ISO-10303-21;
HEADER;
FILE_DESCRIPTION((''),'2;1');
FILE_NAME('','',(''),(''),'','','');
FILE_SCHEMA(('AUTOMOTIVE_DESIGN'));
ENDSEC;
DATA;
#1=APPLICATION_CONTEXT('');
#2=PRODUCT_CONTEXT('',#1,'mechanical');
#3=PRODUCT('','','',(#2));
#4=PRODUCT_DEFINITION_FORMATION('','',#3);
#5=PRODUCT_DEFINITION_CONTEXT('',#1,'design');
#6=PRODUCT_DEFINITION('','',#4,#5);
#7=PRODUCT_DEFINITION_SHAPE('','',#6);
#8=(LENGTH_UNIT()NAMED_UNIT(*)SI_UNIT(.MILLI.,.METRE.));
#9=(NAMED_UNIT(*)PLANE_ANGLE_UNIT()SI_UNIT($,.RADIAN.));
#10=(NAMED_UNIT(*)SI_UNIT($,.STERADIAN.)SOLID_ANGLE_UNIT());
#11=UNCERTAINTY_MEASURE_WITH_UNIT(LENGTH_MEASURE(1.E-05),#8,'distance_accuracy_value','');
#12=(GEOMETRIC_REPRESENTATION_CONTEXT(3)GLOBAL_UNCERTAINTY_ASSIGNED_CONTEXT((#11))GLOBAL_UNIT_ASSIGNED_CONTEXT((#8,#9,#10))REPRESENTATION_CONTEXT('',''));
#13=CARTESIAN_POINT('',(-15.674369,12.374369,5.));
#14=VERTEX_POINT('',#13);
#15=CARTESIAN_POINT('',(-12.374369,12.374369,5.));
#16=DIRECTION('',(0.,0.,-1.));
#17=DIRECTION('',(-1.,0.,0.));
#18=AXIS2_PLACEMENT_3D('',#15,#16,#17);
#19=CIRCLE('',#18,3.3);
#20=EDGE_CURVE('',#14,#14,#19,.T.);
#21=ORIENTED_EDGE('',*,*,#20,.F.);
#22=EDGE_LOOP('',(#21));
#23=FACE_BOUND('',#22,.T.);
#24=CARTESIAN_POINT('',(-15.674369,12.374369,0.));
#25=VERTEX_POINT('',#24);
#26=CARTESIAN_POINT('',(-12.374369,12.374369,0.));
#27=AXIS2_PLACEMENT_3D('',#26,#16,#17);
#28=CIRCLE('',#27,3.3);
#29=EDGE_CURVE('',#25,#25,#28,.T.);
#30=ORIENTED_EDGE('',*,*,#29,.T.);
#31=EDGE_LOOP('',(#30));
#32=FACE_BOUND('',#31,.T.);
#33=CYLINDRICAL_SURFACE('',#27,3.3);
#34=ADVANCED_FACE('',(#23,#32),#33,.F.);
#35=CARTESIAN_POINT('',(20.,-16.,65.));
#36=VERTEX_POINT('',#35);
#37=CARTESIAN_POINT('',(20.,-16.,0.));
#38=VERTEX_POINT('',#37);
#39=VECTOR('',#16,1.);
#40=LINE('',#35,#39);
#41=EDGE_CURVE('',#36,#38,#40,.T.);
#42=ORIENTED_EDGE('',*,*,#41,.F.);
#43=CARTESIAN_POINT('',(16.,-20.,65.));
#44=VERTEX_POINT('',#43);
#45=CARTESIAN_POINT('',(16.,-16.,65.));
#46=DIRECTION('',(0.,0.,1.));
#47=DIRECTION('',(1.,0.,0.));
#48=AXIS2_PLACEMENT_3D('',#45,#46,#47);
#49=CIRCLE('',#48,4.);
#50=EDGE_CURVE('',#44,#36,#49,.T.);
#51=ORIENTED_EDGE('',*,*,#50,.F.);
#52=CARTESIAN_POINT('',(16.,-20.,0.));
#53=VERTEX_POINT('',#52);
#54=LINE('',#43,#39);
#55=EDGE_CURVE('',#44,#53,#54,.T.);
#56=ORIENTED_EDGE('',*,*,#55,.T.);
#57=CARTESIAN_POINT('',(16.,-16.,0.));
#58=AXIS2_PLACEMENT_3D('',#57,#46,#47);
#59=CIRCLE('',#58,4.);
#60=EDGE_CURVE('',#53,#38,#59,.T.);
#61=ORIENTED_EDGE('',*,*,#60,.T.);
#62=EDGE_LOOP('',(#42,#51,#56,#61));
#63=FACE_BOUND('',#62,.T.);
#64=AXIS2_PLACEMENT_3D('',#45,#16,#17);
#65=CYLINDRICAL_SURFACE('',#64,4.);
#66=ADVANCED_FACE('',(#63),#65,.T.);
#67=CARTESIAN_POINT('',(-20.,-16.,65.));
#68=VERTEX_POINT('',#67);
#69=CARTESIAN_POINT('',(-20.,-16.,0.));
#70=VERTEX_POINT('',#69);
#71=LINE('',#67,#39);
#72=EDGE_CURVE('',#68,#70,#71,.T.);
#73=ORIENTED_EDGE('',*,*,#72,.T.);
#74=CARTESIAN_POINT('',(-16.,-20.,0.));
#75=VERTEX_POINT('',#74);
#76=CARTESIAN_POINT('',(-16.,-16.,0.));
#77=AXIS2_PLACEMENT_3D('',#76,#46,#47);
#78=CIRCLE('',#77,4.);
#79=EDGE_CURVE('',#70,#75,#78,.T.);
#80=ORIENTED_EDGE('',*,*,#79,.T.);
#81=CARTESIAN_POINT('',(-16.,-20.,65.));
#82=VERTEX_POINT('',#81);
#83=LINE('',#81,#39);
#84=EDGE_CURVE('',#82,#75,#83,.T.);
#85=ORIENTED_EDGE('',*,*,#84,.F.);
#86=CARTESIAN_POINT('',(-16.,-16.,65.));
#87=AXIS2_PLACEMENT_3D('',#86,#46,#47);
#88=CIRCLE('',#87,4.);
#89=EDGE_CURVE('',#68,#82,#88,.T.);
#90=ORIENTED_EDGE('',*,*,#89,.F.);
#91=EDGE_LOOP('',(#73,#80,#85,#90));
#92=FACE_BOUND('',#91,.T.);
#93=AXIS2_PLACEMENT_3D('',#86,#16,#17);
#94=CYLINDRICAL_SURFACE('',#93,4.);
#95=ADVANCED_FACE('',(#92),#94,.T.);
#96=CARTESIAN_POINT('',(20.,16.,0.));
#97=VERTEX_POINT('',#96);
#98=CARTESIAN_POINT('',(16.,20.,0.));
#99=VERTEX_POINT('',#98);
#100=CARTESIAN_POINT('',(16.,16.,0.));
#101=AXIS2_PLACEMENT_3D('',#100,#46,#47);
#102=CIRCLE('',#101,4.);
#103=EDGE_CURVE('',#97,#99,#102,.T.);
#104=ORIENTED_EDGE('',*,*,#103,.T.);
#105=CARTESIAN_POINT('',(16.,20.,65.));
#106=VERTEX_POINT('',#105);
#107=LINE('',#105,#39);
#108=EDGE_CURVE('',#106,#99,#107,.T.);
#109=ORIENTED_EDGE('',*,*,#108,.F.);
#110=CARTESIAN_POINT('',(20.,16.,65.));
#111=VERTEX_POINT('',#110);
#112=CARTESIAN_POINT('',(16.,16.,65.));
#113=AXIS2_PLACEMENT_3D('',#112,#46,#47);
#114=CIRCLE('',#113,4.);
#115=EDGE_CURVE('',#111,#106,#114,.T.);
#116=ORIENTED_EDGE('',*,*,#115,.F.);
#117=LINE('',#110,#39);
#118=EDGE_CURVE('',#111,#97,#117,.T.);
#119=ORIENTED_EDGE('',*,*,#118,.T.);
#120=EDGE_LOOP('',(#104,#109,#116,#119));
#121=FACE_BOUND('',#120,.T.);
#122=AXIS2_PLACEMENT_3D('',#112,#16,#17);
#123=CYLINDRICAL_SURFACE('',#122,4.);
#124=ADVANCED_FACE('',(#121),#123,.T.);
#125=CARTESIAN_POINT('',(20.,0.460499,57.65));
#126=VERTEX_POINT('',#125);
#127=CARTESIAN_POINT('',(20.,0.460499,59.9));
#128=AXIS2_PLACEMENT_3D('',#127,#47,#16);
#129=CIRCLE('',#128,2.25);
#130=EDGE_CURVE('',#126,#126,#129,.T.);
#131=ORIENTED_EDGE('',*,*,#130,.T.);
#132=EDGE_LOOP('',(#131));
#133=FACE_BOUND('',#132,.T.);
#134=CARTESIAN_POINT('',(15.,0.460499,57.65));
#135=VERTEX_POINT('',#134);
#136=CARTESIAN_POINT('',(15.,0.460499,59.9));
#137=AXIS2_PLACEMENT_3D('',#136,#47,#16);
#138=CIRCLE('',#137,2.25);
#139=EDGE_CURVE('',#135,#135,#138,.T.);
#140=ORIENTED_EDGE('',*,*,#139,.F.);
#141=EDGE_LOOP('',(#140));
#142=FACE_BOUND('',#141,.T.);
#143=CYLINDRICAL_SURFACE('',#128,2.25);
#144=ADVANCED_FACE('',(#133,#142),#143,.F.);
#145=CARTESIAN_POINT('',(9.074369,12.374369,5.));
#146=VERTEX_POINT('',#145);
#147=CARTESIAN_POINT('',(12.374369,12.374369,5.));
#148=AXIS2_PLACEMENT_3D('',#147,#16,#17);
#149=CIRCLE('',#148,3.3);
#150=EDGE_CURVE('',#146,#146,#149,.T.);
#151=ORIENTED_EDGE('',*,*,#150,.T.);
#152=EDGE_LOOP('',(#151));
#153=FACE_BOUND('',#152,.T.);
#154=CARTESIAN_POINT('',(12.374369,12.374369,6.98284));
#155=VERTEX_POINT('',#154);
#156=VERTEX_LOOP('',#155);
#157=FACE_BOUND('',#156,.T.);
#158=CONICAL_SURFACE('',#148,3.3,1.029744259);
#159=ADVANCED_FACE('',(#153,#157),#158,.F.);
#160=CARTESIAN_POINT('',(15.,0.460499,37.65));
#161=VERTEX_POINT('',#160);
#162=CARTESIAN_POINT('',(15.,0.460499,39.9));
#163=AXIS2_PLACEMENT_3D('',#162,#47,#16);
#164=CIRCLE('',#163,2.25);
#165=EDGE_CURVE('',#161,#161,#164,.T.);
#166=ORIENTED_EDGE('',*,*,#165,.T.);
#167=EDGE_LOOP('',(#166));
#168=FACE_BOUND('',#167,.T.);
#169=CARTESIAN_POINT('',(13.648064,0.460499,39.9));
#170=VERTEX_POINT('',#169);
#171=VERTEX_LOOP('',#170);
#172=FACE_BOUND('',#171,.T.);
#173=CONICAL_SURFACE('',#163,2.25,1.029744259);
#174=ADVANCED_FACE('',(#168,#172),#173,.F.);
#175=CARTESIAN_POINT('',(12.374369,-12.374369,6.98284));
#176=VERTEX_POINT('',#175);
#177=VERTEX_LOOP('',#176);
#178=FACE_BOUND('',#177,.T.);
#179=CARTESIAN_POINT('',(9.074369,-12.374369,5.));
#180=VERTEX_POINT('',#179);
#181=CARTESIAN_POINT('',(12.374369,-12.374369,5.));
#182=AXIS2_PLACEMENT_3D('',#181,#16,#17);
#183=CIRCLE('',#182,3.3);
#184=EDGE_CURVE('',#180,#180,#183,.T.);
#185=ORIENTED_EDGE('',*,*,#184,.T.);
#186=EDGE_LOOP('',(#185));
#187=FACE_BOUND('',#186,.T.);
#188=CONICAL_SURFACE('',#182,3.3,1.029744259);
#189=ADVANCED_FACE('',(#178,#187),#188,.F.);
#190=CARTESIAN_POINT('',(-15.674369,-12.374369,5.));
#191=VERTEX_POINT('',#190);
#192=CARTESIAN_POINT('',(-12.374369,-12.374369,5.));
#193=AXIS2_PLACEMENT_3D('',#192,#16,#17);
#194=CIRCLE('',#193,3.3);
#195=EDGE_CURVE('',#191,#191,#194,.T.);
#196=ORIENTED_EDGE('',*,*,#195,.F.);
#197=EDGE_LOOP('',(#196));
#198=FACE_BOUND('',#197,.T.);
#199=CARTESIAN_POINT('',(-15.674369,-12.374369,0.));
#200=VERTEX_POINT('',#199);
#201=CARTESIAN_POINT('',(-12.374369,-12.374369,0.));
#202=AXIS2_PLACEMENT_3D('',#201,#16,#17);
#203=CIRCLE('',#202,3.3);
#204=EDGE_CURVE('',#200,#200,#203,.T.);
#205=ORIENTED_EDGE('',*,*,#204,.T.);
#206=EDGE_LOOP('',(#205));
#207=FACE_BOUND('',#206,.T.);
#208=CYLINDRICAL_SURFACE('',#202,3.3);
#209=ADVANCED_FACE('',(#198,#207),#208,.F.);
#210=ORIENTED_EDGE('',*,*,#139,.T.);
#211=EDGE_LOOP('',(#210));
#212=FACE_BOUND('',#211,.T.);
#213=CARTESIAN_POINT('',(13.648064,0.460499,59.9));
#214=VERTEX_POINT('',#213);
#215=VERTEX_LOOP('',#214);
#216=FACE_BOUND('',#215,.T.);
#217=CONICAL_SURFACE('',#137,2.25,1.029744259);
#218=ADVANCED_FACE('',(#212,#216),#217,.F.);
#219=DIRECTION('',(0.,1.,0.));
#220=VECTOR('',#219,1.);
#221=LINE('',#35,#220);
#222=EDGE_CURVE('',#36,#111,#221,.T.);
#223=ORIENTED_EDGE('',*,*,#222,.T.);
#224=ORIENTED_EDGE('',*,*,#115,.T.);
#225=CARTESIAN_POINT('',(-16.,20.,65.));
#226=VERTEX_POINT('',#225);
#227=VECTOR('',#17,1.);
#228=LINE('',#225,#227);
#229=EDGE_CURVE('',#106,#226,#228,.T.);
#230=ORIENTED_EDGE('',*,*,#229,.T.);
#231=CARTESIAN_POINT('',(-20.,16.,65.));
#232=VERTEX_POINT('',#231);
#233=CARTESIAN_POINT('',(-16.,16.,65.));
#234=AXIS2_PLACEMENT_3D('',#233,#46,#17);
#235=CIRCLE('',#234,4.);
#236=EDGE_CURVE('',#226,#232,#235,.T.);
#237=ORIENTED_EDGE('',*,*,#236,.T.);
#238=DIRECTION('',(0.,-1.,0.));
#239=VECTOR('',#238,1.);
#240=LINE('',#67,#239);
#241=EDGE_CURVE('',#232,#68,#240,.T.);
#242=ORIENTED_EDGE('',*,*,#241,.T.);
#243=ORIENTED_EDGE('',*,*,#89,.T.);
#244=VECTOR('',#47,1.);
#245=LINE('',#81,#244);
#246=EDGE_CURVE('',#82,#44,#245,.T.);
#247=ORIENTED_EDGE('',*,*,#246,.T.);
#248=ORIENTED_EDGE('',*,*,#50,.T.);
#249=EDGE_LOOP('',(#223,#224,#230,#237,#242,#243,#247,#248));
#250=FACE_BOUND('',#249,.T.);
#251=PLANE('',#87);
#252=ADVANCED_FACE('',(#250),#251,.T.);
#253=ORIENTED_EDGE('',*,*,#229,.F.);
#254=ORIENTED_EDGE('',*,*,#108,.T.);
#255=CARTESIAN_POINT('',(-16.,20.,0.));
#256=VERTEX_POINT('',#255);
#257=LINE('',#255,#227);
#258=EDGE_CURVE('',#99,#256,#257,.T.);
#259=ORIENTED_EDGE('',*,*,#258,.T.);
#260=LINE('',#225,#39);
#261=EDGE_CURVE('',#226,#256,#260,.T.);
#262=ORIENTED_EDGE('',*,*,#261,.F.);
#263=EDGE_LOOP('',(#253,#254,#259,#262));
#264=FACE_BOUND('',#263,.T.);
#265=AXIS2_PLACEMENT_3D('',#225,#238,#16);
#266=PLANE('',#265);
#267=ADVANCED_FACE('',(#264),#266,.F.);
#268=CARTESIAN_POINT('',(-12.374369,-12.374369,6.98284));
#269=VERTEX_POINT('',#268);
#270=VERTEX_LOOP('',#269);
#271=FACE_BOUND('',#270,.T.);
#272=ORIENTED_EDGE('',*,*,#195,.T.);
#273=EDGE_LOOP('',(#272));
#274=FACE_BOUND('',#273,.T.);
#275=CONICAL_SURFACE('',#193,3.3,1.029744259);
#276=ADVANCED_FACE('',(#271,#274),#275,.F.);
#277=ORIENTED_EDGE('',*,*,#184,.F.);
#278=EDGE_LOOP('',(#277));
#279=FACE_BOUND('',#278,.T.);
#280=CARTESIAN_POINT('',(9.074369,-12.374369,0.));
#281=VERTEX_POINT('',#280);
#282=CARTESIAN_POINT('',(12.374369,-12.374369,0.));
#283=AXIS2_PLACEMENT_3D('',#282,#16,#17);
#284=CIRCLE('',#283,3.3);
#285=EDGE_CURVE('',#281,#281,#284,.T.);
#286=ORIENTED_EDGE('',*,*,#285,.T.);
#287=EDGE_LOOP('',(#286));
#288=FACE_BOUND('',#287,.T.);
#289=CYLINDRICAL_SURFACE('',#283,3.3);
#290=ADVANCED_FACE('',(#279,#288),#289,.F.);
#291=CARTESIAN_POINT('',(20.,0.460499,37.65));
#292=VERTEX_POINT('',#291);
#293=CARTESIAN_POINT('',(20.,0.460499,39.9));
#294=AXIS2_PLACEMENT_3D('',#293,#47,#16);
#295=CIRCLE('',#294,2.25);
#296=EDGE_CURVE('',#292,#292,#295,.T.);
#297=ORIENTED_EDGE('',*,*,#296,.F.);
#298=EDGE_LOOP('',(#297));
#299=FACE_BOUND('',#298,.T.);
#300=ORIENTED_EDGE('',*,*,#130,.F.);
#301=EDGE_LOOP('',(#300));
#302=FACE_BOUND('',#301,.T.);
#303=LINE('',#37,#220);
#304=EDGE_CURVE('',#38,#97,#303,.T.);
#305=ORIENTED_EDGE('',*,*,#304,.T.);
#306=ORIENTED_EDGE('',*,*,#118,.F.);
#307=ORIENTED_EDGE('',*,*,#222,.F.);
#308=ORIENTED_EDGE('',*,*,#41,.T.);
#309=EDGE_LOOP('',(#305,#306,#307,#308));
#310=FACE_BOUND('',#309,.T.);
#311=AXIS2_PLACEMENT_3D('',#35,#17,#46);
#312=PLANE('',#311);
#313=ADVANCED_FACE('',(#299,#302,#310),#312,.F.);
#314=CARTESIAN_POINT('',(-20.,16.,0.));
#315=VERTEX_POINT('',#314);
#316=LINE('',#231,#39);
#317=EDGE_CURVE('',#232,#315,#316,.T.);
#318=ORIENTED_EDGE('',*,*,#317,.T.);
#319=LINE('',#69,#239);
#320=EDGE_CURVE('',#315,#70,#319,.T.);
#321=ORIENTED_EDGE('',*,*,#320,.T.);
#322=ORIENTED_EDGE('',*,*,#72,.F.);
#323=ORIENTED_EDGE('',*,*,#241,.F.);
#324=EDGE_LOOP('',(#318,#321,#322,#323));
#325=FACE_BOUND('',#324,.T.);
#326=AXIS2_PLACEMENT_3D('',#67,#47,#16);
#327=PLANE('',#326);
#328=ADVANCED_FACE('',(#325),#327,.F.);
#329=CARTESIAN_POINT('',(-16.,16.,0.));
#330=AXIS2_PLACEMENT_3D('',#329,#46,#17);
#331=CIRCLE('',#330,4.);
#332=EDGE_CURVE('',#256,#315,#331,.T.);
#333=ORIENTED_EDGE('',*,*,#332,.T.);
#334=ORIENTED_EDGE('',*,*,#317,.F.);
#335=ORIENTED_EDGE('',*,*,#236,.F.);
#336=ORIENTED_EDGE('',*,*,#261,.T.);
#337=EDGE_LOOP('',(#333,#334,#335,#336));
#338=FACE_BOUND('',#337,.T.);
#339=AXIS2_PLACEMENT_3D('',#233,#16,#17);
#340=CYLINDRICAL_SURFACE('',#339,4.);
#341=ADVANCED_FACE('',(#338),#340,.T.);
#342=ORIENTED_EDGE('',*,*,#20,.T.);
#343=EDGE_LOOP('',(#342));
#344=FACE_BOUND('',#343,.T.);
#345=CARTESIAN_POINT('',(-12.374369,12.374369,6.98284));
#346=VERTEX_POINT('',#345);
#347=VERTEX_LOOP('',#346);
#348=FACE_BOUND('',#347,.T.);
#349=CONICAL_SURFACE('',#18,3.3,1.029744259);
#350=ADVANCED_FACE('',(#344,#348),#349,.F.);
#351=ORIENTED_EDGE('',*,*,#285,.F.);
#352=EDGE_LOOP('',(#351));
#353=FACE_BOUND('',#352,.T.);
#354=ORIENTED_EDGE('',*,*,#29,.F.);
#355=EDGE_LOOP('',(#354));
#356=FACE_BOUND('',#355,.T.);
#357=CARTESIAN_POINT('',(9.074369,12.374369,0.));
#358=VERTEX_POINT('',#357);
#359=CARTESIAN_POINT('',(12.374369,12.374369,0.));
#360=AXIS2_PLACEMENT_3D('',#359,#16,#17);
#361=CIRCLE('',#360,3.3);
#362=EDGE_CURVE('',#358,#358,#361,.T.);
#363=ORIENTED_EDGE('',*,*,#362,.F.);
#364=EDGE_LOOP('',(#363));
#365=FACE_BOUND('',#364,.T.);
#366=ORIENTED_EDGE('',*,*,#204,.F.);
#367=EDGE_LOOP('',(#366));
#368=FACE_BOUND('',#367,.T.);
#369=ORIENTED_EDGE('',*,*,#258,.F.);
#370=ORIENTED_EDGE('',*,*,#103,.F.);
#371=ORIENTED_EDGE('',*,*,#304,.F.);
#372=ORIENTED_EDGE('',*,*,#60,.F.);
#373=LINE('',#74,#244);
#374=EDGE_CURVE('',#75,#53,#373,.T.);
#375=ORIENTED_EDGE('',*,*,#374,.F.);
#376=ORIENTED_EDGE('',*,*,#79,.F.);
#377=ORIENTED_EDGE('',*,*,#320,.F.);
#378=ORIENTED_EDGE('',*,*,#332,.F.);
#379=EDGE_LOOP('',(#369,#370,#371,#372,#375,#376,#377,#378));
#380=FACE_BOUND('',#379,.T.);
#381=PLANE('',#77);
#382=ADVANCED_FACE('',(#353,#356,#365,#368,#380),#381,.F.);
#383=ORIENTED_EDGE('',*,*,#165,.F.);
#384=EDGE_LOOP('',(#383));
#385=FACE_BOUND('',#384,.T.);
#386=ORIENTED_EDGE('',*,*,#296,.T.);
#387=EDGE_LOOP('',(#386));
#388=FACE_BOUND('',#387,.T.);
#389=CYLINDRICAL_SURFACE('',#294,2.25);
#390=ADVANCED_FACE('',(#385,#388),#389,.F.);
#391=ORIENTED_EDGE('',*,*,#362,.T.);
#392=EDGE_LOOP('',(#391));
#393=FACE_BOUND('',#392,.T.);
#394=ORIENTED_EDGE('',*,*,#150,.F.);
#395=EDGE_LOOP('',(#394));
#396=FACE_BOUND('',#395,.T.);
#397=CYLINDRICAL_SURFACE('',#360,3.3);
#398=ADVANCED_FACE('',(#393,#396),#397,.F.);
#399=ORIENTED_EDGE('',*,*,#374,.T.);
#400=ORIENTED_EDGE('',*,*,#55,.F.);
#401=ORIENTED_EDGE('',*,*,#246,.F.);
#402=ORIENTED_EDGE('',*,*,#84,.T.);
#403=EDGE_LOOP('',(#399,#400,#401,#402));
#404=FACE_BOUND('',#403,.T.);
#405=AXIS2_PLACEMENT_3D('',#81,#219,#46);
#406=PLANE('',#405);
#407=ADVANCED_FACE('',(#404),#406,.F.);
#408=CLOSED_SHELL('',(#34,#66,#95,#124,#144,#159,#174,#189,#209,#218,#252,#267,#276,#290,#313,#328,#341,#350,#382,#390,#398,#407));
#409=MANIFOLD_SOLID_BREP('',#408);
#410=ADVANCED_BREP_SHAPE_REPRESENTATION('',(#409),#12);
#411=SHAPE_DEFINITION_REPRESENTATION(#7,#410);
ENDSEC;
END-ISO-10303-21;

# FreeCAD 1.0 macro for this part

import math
import FreeCAD as App
import Part
import Sketcher

V = App.Vector

doc = App.newDocument("Part")
body = doc.addObject("PartDesign::Body", "Body")

sketch1 = doc.addObject("Sketcher::SketchObject", "Sketch")
body.addObject(sketch1)
sketch1.AttachmentSupport = (doc.XY_Plane, [""])
sketch1.MapMode = "FlatFace"
sketch1.addGeometry([
    Part.LineSegment(V(-16, -20, 0), V(16, -20, 0)),
    Part.ArcOfCircle(Part.Circle(V(16, -16, 0), V(0, 0, 1), 4), math.radians(-90), math.radians(0)),
    Part.LineSegment(V(20, -16, 0), V(20, 16, 0)),
    Part.ArcOfCircle(Part.Circle(V(16, 16, 0), V(0, 0, 1), 4), math.radians(0), math.radians(90)),
    Part.LineSegment(V(16, 20, 0), V(-16, 20, 0)),
    Part.ArcOfCircle(Part.Circle(V(-16, 16, 0), V(0, 0, 1), 4), math.radians(90), math.radians(180)),
    Part.LineSegment(V(-20, 16, 0), V(-20, -16, 0)),
    Part.ArcOfCircle(Part.Circle(V(-16, -16, 0), V(0, 0, 1), 4), math.radians(180), math.radians(270)),
], False)
sketch1.addConstraint([
    Sketcher.Constraint("Tangent", 0, 2, 1, 1),
    Sketcher.Constraint("Tangent", 1, 2, 2, 1),
    Sketcher.Constraint("Tangent", 2, 2, 3, 1),
    Sketcher.Constraint("Tangent", 3, 2, 4, 1),
    Sketcher.Constraint("Tangent", 4, 2, 5, 1),
    Sketcher.Constraint("Tangent", 5, 2, 6, 1),
    Sketcher.Constraint("Tangent", 6, 2, 7, 1),
    Sketcher.Constraint("Tangent", 7, 2, 0, 1),
    Sketcher.Constraint("Horizontal", 0),
    Sketcher.Constraint("Vertical", 2),
    Sketcher.Constraint("Horizontal", 4),
    Sketcher.Constraint("Vertical", 6),
    Sketcher.Constraint("Equal", 1, 3),
    Sketcher.Constraint("Equal", 3, 5),
    Sketcher.Constraint("Equal", 5, 7),
    Sketcher.Constraint("Symmetric", 1, 3, 5, 3, -1, 1),
    Sketcher.Constraint("Equal", 4, 2),
    Sketcher.Constraint("Radius", 1, 4.0),
    Sketcher.Constraint("DistanceX", 0, 1, 0, 2, 32.0),
])
pad1 = doc.addObject("PartDesign::Pad", "Pad")
body.addObject(pad1)
pad1.Profile = sketch1
pad1.Length = 65

sketch2 = doc.addObject("Sketcher::SketchObject", "Sketch001")
body.addObject(sketch2)
sketch2.AttachmentSupport = (doc.XY_Plane, [""])
sketch2.MapMode = "FlatFace"
sketch2.addGeometry([
    Part.Circle(V(12.4, 12.4, 0), V(0, 0, 1), 0.5),
    Part.Circle(V(-12.4, 12.4, 0), V(0, 0, 1), 0.5),
    Part.Circle(V(-12.4, -12.4, 0), V(0, 0, 1), 0.5),
    Part.Circle(V(12.4, -12.4, 0), V(0, 0, 1), 0.5),
], False)
sketch2.addConstraint([
    Sketcher.Constraint("Equal", 0, 1),
    Sketcher.Constraint("Equal", 1, 2),
    Sketcher.Constraint("Equal", 2, 3),
    Sketcher.Constraint("Symmetric", 0, 3, 2, 3, -1, 1),
    Sketcher.Constraint("Symmetric", 1, 3, 3, 3, -1, 1),
    Sketcher.Constraint("Symmetric", 0, 3, 1, 3, -2),
    Sketcher.Constraint("Diameter", 0, 1.024744),
    Sketcher.Constraint("DistanceX", -1, 1, 0, 3, 12.374369),
    Sketcher.Constraint("DistanceY", -1, 1, 0, 3, 12.374369),
])
pocket1 = doc.addObject("PartDesign::Pocket", "Pocket")
body.addObject(pocket1)
pocket1.Profile = sketch2
pocket1.Length = 3
pocket1.Reversed = True

sketch3 = doc.addObject("Sketcher::SketchObject", "Sketch002")
body.addObject(sketch3)
sketch3.AttachmentSupport = (doc.XY_Plane, [""])
sketch3.MapMode = "FlatFace"
sketch3.addGeometry([
    Part.Circle(V(-12.4, 12.4, 0), V(0, 0, 1), 3.3),
    Part.Circle(V(12.4, 12.4, 0), V(0, 0, 1), 3.3),
    Part.Circle(V(12.4, -12.4, 0), V(0, 0, 1), 3.3),
    Part.Circle(V(-12.4, -12.4, 0), V(0, 0, 1), 3.3),
], False)
sketch3.addConstraint([
    Sketcher.Constraint("Equal", 0, 1),
    Sketcher.Constraint("Equal", 1, 2),
    Sketcher.Constraint("Equal", 2, 3),
    Sketcher.Constraint("Symmetric", 0, 3, 2, 3, -1, 1),
    Sketcher.Constraint("Symmetric", 1, 3, 3, 3, -1, 1),
    Sketcher.Constraint("Symmetric", 0, 3, 1, 3, -2),
    Sketcher.Constraint("Diameter", 0, 6.6),
    Sketcher.Constraint("DistanceX", 0, 3, -1, 1, 12.374369),
    Sketcher.Constraint("DistanceY", -1, 1, 0, 3, 12.374369),
])
doc.recompute()
hole = doc.addObject("PartDesign::Hole", "Hole")
body.addObject(hole)
hole.Profile = sketch3
hole.ThreadType = "None"
hole.Diameter = 6.6
hole.DepthType = "Dimension"
hole.Depth = 5
hole.DrillPoint = "Angled"
hole.DrillPointAngle = 118
hole.Reversed = True

sketch4 = doc.addObject("Sketcher::SketchObject", "Sketch003")
body.addObject(sketch4)
sketch4.AttachmentSupport = (doc.YZ_Plane, [""])
sketch4.MapMode = "FlatFace"
sketch4.AttachmentOffset = App.Placement(V(0, 0, 20), App.Rotation())
sketch4.addGeometry([
    Part.Circle(V(0.5, 59.9, 0), V(0, 0, 1), 2.2),
    Part.Circle(V(0.5, 39.9, 0), V(0, 0, 1), 2.2),
], False)
sketch4.addConstraint([
    Sketcher.Constraint("Equal", 0, 1),
    Sketcher.Constraint("Vertical", 0, 3, 1, 3),
    Sketcher.Constraint("Diameter", 0, 4.5),
    Sketcher.Constraint("DistanceY", 1, 3, 0, 3, 20.0),
    Sketcher.Constraint("DistanceY", -1, 1, 0, 3, 59.9),
    Sketcher.Constraint("DistanceX", -1, 1, 0, 3, 0.460499),
])
doc.recompute()
hole2 = doc.addObject("PartDesign::Hole", "Hole001")
body.addObject(hole2)
hole2.Profile = sketch4
hole2.ThreadType = "None"
hole2.Diameter = 4.5
hole2.DepthType = "Dimension"
hole2.Depth = 5
hole2.DrillPoint = "Angled"
hole2.DrillPointAngle = 118

doc.recompute()
